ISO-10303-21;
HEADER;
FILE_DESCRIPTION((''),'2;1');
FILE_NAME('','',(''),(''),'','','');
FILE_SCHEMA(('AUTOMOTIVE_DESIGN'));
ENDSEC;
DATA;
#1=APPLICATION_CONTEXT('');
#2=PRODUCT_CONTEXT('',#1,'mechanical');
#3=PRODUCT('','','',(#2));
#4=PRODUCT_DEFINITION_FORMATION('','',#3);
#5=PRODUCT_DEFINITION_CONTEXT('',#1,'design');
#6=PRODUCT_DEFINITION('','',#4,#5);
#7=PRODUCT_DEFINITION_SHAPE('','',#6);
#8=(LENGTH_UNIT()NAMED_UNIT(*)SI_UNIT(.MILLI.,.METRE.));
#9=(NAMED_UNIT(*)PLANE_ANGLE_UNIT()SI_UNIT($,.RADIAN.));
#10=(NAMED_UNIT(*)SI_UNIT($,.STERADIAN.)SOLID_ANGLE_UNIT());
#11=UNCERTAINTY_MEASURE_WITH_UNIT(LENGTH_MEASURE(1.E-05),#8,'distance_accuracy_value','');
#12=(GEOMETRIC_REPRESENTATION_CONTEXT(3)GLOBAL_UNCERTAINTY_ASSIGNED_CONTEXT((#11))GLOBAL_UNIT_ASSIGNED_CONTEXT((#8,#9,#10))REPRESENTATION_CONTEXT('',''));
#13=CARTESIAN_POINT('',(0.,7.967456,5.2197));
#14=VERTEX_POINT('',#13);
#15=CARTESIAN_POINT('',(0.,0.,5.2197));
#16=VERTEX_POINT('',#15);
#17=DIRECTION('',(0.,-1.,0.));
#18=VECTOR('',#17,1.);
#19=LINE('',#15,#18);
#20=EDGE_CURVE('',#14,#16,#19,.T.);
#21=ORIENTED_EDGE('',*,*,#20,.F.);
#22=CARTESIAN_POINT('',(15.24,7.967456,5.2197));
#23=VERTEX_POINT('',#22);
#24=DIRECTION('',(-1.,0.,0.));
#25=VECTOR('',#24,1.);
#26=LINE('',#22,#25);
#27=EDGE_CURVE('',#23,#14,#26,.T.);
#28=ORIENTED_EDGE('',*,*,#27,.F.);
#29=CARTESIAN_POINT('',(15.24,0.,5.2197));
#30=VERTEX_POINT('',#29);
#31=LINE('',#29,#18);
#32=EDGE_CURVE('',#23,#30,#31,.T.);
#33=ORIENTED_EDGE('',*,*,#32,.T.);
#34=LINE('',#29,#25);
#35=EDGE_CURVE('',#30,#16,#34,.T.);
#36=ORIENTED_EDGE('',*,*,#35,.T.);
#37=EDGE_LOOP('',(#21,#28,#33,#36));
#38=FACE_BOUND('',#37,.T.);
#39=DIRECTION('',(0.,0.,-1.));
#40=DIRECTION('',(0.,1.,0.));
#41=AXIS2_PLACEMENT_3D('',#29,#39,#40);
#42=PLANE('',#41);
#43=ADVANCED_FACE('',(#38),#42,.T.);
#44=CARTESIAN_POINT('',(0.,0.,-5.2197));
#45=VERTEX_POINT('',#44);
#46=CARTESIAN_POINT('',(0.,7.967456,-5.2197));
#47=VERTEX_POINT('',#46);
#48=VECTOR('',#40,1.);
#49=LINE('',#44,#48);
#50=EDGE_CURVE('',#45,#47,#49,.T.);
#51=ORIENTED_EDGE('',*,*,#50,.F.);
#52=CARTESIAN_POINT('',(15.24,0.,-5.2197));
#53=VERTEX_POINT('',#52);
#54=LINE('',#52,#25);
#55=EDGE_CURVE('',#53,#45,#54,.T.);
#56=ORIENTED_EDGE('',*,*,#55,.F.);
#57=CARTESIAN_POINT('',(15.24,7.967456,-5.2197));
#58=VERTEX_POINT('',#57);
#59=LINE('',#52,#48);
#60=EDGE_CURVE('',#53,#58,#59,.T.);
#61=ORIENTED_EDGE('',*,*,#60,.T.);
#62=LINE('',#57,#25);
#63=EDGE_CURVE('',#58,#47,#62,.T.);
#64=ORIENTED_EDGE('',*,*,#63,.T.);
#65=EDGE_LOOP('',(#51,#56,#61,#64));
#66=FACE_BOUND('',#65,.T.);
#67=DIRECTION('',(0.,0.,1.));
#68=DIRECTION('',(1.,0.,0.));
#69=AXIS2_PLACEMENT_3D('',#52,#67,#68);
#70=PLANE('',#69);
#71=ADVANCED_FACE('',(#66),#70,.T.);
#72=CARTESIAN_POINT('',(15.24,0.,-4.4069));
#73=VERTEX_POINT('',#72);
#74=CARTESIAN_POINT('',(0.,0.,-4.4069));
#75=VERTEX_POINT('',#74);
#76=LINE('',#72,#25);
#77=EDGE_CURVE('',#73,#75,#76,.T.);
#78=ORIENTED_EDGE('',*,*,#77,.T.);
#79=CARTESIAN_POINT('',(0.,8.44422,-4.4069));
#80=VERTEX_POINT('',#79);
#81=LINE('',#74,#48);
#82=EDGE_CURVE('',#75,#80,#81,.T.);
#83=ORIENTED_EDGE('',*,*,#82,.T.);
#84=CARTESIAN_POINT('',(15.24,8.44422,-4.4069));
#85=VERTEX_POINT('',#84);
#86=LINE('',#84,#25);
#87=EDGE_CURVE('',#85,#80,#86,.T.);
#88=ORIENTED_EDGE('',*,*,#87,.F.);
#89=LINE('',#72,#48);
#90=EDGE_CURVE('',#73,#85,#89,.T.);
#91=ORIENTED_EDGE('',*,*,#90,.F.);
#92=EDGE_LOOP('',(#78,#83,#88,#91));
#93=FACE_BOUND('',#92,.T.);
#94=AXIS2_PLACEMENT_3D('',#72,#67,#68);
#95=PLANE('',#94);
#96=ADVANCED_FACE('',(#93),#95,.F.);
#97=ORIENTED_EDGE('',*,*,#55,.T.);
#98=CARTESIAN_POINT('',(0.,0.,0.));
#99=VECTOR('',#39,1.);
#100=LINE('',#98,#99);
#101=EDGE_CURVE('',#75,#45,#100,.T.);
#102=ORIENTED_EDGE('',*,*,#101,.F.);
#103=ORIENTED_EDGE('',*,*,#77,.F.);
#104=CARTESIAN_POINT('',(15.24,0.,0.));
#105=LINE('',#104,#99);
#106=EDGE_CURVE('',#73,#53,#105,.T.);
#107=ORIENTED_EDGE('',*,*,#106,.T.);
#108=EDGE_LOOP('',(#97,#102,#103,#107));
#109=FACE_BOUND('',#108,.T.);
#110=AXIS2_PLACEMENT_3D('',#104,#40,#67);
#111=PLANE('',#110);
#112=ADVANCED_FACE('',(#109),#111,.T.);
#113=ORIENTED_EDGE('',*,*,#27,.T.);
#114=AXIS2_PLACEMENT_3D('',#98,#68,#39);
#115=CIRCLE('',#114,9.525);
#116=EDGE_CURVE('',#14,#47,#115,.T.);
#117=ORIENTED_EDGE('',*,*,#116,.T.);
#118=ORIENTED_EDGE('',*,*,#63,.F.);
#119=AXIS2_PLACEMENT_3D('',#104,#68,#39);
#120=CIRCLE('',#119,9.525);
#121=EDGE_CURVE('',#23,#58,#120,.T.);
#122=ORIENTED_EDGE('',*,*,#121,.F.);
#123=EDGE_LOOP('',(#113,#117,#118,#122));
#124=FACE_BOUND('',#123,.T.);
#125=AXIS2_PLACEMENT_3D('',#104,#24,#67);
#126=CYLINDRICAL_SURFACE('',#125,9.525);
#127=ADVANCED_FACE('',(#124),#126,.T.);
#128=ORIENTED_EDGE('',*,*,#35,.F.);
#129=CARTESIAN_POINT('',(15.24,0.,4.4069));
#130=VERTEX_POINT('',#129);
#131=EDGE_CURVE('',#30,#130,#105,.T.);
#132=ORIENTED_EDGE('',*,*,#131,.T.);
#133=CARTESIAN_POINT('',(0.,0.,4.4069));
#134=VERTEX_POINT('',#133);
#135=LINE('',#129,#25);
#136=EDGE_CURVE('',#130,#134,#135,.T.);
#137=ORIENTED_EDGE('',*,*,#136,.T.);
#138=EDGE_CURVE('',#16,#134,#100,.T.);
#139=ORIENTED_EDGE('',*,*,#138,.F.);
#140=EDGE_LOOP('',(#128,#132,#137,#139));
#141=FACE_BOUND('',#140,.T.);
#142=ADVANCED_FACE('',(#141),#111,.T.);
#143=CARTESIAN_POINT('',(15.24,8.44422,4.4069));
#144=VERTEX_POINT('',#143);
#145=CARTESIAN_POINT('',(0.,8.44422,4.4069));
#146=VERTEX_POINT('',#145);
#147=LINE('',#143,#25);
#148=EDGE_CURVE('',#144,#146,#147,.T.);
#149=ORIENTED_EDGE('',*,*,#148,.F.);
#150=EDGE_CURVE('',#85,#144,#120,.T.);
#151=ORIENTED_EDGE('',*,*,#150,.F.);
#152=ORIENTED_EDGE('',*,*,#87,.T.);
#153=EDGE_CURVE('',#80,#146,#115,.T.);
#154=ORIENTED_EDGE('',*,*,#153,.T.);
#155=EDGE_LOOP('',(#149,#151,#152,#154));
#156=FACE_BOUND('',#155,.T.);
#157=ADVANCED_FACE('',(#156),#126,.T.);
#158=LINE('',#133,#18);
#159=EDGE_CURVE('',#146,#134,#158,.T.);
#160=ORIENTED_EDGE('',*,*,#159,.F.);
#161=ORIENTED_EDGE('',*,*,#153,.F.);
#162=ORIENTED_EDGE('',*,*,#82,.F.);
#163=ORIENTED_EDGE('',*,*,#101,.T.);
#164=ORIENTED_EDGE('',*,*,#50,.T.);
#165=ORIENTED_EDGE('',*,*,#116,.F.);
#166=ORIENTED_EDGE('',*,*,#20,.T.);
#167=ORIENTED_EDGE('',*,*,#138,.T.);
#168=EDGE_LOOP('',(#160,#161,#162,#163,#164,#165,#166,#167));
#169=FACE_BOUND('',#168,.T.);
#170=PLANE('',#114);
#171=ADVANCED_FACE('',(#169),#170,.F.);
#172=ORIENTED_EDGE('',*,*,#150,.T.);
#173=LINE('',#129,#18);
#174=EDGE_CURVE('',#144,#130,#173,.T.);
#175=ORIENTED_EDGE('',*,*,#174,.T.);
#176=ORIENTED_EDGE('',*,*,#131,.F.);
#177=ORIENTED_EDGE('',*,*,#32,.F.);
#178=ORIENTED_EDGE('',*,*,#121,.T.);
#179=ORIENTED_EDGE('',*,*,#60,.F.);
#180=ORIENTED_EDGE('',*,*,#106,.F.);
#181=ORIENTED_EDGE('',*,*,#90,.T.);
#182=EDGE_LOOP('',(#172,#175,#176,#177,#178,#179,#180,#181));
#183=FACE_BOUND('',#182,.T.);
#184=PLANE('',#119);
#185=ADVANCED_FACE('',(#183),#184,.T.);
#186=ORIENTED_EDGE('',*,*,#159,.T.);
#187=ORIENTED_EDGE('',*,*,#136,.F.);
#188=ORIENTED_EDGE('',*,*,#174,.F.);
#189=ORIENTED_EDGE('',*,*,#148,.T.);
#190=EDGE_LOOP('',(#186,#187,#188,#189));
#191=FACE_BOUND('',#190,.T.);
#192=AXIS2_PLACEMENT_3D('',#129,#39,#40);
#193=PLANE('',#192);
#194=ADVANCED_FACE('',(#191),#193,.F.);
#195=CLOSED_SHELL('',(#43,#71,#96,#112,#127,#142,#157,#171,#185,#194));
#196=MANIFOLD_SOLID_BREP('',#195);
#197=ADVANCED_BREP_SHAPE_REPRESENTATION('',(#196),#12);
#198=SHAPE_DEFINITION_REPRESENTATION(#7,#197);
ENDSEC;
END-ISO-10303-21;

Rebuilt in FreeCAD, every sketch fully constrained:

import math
import FreeCAD as App
import Part
import Sketcher
from FreeCAD import Vector
Q = App.Units.Quantity

doc = App.newDocument("Part")
body = doc.addObject("PartDesign::Body", "Body")

sketch1 = body.newObject("Sketcher::SketchObject", "Sketch")
sketch1.AttachmentSupport = (doc.getObject("YZ_Plane"), [""])
sketch1.MapMode = "FlatFace"
sketch1.addGeometry([
    Part.LineSegment(Vector(8.44422, 4.4069, 0), Vector(0, 4.4069, 0)),
    Part.LineSegment(Vector(0, 4.4069, 0), Vector(0, 5.2197, 0)),
    Part.LineSegment(Vector(0, 5.2197, 0), Vector(7.967456, 5.2197, 0)),
    Part.ArcOfCircle(Part.Circle(Vector(0, 0, 0), Vector(0, 0, 1), 9.525), math.radians(33.229913), math.radians(270)),
    Part.ArcOfCircle(Part.Circle(Vector(0, 0, 0), Vector(0, 0, 1), 9.525), math.radians(-90), math.radians(-33.229913)),
    Part.LineSegment(Vector(7.967456, -5.2197, 0), Vector(0, -5.2197, 0)),
    Part.LineSegment(Vector(0, -5.2197, 0), Vector(0, -4.4069, 0)),
    Part.LineSegment(Vector(0, -4.4069, 0), Vector(8.44422, -4.4069, 0)),
    Part.ArcOfCircle(Part.Circle(Vector(0, 0, 0), Vector(0, 0, 1), 9.525), math.radians(-27.559317), math.radians(27.559317)),
], False)
sketch1.addConstraint([
    Sketcher.Constraint("Coincident", 0, 2, 1, 1),
    Sketcher.Constraint("Coincident", 1, 2, 2, 1),
    Sketcher.Constraint("Coincident", 2, 2, 3, 1),
    Sketcher.Constraint("Tangent", 3, 2, 4, 1),
    Sketcher.Constraint("Coincident", 4, 2, 5, 1),
    Sketcher.Constraint("Coincident", 5, 2, 6, 1),
    Sketcher.Constraint("Coincident", 6, 2, 7, 1),
    Sketcher.Constraint("Coincident", 7, 2, 8, 1),
    Sketcher.Constraint("Coincident", 8, 2, 0, 1),
    Sketcher.Constraint("Horizontal", 0),
    Sketcher.Constraint("Vertical", 1),
    Sketcher.Constraint("Horizontal", 2),
    Sketcher.Constraint("Horizontal", 5),
    Sketcher.Constraint("Vertical", 6),
    Sketcher.Constraint("Horizontal", 7),
    Sketcher.Constraint("Coincident", 3, 3, -1, 1),
    Sketcher.Constraint("Coincident", 8, 3, -1, 1),
    Sketcher.Constraint("Equal", 3, 4),
    Sketcher.Constraint("Equal", 4, 8),
    Sketcher.Constraint("Symmetric", 1, 2, 5, 2, -1, 1),
    Sketcher.Constraint("Symmetric", 0, 2, 6, 2, -1),
    Sketcher.Constraint("PointOnObject", 3, 2, -2),
    Sketcher.Constraint("Radius", 3, Q("0.375 in")),
    Sketcher.Constraint("DistanceY", 1, 1, 1, 2, Q("0.032 in")),
    Sketcher.Constraint("DistanceY", 4, 2, 2, 2, Q("0.411 in")),
])
pad1 = body.newObject("PartDesign::Pad", "Pad")
pad1.Profile = sketch1
pad1.Length = Q("0.6 in")

doc.recompute()
